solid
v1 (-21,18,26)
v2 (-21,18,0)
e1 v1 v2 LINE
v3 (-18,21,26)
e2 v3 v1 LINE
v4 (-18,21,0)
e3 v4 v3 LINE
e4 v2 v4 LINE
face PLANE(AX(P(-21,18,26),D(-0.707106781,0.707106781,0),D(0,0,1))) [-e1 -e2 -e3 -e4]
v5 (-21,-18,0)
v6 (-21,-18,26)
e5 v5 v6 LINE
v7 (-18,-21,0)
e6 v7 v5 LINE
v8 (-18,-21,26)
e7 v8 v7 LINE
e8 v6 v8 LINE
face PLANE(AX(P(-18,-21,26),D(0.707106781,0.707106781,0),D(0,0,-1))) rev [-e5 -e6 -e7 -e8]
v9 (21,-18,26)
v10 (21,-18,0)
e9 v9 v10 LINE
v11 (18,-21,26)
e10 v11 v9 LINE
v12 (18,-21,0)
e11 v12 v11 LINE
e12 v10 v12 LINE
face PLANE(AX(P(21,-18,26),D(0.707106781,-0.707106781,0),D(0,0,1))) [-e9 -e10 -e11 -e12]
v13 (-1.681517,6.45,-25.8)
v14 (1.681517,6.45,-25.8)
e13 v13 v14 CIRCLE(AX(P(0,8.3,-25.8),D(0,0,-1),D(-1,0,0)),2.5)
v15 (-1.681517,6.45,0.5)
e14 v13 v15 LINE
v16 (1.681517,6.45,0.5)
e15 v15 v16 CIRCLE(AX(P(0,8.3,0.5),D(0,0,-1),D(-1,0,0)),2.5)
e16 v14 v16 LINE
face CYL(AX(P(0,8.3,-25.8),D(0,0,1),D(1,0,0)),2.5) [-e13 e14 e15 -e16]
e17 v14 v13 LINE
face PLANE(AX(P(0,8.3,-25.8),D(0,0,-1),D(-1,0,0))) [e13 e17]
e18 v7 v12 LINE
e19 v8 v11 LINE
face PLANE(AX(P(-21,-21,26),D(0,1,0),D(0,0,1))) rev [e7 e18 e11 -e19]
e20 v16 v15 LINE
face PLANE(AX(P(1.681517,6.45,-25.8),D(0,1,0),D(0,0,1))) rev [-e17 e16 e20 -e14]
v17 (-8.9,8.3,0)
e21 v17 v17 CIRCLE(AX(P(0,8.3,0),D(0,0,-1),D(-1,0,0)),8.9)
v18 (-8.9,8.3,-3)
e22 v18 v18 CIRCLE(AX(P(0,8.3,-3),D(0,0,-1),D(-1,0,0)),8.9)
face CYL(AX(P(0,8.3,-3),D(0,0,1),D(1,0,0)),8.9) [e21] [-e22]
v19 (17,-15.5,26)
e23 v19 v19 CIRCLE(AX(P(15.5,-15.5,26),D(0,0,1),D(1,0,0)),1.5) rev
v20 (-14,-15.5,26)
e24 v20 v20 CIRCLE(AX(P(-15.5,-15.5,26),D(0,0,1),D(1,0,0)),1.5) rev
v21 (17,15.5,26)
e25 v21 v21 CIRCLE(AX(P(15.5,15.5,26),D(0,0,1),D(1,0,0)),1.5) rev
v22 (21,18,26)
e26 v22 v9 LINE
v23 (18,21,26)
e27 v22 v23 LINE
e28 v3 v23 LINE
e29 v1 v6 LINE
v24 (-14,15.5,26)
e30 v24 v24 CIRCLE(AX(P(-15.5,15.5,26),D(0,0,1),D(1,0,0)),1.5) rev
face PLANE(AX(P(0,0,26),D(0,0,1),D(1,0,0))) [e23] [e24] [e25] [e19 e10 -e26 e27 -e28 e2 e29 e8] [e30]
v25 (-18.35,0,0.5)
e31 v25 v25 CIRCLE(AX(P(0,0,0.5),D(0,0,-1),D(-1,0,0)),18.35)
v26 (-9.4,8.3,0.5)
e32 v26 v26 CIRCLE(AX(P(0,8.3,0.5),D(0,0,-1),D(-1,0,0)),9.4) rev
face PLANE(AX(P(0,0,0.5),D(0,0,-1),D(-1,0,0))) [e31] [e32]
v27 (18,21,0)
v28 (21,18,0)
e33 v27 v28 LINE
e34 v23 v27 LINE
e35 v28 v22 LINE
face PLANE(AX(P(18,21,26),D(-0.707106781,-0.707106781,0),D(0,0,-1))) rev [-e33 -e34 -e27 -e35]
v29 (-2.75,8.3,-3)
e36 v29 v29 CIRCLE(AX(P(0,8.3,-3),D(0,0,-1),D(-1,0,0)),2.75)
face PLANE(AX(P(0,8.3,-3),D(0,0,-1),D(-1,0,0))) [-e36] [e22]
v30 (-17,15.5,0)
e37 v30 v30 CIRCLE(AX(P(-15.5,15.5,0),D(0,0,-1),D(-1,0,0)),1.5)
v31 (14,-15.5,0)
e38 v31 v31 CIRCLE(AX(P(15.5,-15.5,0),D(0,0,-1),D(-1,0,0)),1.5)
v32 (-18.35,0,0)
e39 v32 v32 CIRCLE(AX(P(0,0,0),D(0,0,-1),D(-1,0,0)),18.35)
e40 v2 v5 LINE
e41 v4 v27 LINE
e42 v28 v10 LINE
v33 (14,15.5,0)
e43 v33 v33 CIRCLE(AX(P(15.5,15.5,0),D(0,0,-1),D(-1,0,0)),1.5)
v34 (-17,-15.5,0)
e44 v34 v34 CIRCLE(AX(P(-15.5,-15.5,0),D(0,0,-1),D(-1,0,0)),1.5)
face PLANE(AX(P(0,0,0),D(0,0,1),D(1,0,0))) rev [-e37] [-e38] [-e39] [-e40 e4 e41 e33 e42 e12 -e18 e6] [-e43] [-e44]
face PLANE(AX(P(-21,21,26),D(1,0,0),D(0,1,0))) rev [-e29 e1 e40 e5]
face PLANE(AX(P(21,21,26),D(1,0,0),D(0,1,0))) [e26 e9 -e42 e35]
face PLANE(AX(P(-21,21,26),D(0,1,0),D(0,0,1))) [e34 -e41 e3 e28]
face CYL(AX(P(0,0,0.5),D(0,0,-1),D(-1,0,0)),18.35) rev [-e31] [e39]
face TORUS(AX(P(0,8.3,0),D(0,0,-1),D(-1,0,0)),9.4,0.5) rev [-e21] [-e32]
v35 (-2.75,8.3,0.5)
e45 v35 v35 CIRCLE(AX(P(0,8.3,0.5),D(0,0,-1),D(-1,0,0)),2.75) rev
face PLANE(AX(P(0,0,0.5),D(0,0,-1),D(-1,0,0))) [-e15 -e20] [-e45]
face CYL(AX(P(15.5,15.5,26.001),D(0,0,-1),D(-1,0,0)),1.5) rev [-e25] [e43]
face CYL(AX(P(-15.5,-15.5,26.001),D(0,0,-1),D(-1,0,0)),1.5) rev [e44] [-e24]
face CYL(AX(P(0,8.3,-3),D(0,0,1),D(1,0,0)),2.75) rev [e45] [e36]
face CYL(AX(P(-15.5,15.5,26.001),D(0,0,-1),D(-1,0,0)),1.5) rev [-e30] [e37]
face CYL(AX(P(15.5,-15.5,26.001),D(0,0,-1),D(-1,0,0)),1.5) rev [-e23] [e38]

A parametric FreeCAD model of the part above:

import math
import FreeCAD as App
import Part
import Sketcher
from FreeCAD import Vector
Q = App.Units.Quantity


def edges_at(feature, points):
    """Names of the edges that pass closest to the given points."""
    edges = feature.Shape.Edges
    near = lambda p: min(range(len(edges)), key=lambda i: edges[i].distToShape(Part.Vertex(*p))[0])
    return sorted({f"Edge{near(p) + 1}" for p in points})

doc = App.newDocument("Part")
body = doc.addObject("PartDesign::Body", "Body")

# Sketch on XY plane
sketch1 = doc.addObject("Sketcher::SketchObject", "Sketch")
body.addObject(sketch1)
sketch1.AttachmentSupport = (doc.XY_Plane, [""])
sketch1.MapMode = "FlatFace"
sketch1.addGeometry(Part.LineSegment(Vector(-21, 21, 0), Vector(-21, -21, 0)), False)
sketch1.addGeometry(Part.LineSegment(Vector(-21, -21, 0), Vector(21, -21, 0)), False)
sketch1.addGeometry(Part.LineSegment(Vector(21, -21, 0), Vector(21, 21, 0)), False)
sketch1.addGeometry(Part.LineSegment(Vector(21, 21, 0), Vector(-21, 21, 0)), False)
sketch1.addConstraint(Sketcher.Constraint("Coincident", 0, 2, 1, 1))
sketch1.addConstraint(Sketcher.Constraint("Coincident", 1, 2, 2, 1))
sketch1.addConstraint(Sketcher.Constraint("Coincident", 2, 2, 3, 1))
sketch1.addConstraint(Sketcher.Constraint("Coincident", 3, 2, 0, 1))
sketch1.addConstraint(Sketcher.Constraint("Vertical", 0))
sketch1.addConstraint(Sketcher.Constraint("Horizontal", 1))
sketch1.addConstraint(Sketcher.Constraint("Vertical", 2))
sketch1.addConstraint(Sketcher.Constraint("Horizontal", 3))
sketch1.addConstraint(Sketcher.Constraint("Symmetric", 0, 2, 2, 2, -1, 1))
sketch1.addConstraint(Sketcher.Constraint("Equal", 3, 0))
sketch1.addConstraint(Sketcher.Constraint("DistanceX", 1, 1, 1, 2, Q("42 mm")))
pad1 = doc.addObject("PartDesign::Pad", "Pad")
body.addObject(pad1)
pad1.Profile = sketch1
pad1.Length = 26
doc.recompute()

chamfer = doc.addObject("PartDesign::Chamfer", "Chamfer")
body.addObject(chamfer)
chamfer.Base = (pad1, edges_at(pad1, [
    (-21, 21, 13),
    (21, 21, 13),
    (21, -21, 13),
    (-21, -21, 13),
]))
chamfer.Size = 3

# Sketch on XY plane
sketch2 = doc.addObject("Sketcher::SketchObject", "Sketch001")
body.addObject(sketch2)
sketch2.AttachmentSupport = (doc.XY_Plane, [""])
sketch2.MapMode = "FlatFace"
sketch2.addGeometry(Part.Circle(Vector(0, 0, 0), Vector(0, 0, 1), 11.25), False)
sketch2.addConstraint(Sketcher.Constraint("Coincident", 0, 3, -1, 1))
sketch2.addConstraint(Sketcher.Constraint("Diameter", 0, Q("22.5 mm")))
pad2 = doc.addObject("PartDesign::Pad", "Pad001")
body.addObject(pad2)
pad2.Profile = sketch2
pad2.Length = 0.5

# Sketch on XY plane
sketch3 = doc.addObject("Sketcher::SketchObject", "Sketch002")
body.addObject(sketch3)
sketch3.AttachmentSupport = (doc.XY_Plane, [""])
sketch3.MapMode = "FlatFace"
sketch3.addGeometry(Part.Circle(Vector(-15.5, 15.5, 0), Vector(0, 0, 1), 1.5), False)
sketch3.addConstraint(Sketcher.Constraint("Diameter", 0, Q("3 mm")))
sketch3.addConstraint(Sketcher.Constraint("DistanceX", 0, 3, -1, 1, Q("15.5 mm")))
sketch3.addConstraint(Sketcher.Constraint("DistanceY", -1, 1, 0, 3, Q("15.5 mm")))
pocket1 = doc.addObject("PartDesign::Pocket", "Pocket")
body.addObject(pocket1)
pocket1.Profile = sketch3
pocket1.Type = "UpToFirst"
pocket1.Reversed = True

# Sketch on XY plane
sketch4 = doc.addObject("Sketcher::SketchObject", "Sketch003")
body.addObject(sketch4)
sketch4.AttachmentSupport = (doc.XY_Plane, [""])
sketch4.MapMode = "FlatFace"
sketch4.addGeometry(Part.Circle(Vector(15.5, 15.5, 0), Vector(0, 0, 1), 1.5), False)
sketch4.addConstraint(Sketcher.Constraint("Diameter", 0, Q("3 mm")))
sketch4.addConstraint(Sketcher.Constraint("DistanceX", -1, 1, 0, 3, Q("15.5 mm")))
sketch4.addConstraint(Sketcher.Constraint("DistanceY", -1, 1, 0, 3, Q("15.5 mm")))
pocket2 = doc.addObject("PartDesign::Pocket", "Pocket001")
body.addObject(pocket2)
pocket2.Profile = sketch4
pocket2.Type = "UpToFirst"
pocket2.Reversed = True

# Sketch on XY plane
sketch5 = doc.addObject("Sketcher::SketchObject", "Sketch004")
body.addObject(sketch5)
sketch5.AttachmentSupport = (doc.XY_Plane, [""])
sketch5.MapMode = "FlatFace"
sketch5.addGeometry(Part.Circle(Vector(15.5, -15.5, 0), Vector(0, 0, 1), 1.5), False)
sketch5.addConstraint(Sketcher.Constraint("Diameter", 0, Q("3 mm")))
sketch5.addConstraint(Sketcher.Constraint("DistanceX", -1, 1, 0, 3, Q("15.5 mm")))
sketch5.addConstraint(Sketcher.Constraint("DistanceY", 0, 3, -1, 1, Q("15.5 mm")))
pocket3 = doc.addObject("PartDesign::Pocket", "Pocket002")
body.addObject(pocket3)
pocket3.Profile = sketch5
pocket3.Type = "UpToFirst"
pocket3.Reversed = True

# Sketch on XY plane
sketch6 = doc.addObject("Sketcher::SketchObject", "Sketch005")
body.addObject(sketch6)
sketch6.AttachmentSupport = (doc.XY_Plane, [""])
sketch6.MapMode = "FlatFace"
sketch6.addGeometry(Part.Circle(Vector(-15.5, -15.5, 0), Vector(0, 0, 1), 1.5), False)
sketch6.addConstraint(Sketcher.Constraint("Diameter", 0, Q("3 mm")))
sketch6.addConstraint(Sketcher.Constraint("DistanceX", 0, 3, -1, 1, Q("15.5 mm")))
sketch6.addConstraint(Sketcher.Constraint("DistanceY", 0, 3, -1, 1, Q("15.5 mm")))
pocket4 = doc.addObject("PartDesign::Pocket", "Pocket003")
body.addObject(pocket4)
pocket4.Profile = sketch6
pocket4.Type = "UpToFirst"
pocket4.Reversed = True

# Sketch on XY plane
sketch7 = doc.addObject("Sketcher::SketchObject", "Sketch006")
body.addObject(sketch7)
sketch7.AttachmentSupport = (doc.XY_Plane, [""])
sketch7.MapMode = "FlatFace"
sketch7.addGeometry(Part.Circle(Vector(0, 0, 0), Vector(0, 0, 1), 18.35), False)
sketch7.addConstraint(Sketcher.Constraint("Coincident", 0, 3, -1, 1))
sketch7.addConstraint(Sketcher.Constraint("Diameter", 0, Q("36.7 mm")))
pocket5 = doc.addObject("PartDesign::Pocket", "Pocket004")
body.addObject(pocket5)
pocket5.Profile = sketch7
pocket5.Length = 0.5
pocket5.Reversed = True

# Sketch on XY plane
sketch8 = doc.addObject("Sketcher::SketchObject", "Sketch007")
body.addObject(sketch8)
sketch8.AttachmentSupport = (doc.XY_Plane, [""])
sketch8.MapMode = "FlatFace"
sketch8.AttachmentOffset = App.Placement(Vector(0, 0, 0.5), App.Rotation())
sketch8.addGeometry(Part.Circle(Vector(0, 8.3, 0), Vector(0, 0, 1), 8.9), False)
sketch8.addGeometry(Part.Circle(Vector(0, 8.3, 0), Vector(0, 0, 1), 2.75), False)
sketch8.addConstraint(Sketcher.Constraint("Coincident", 1, 3, 0, 3))
sketch8.addConstraint(Sketcher.Constraint("PointOnObject", 0, 3, -2))
sketch8.addConstraint(Sketcher.Constraint("Diameter", 0, Q("17.8 mm")))
sketch8.addConstraint(Sketcher.Constraint("Diameter", 1, Q("5.5 mm")))
sketch8.addConstraint(Sketcher.Constraint("DistanceY", -1, 1, 0, 3, Q("8.3 mm")))
pad3 = doc.addObject("PartDesign::Pad", "Pad002")
body.addObject(pad3)
pad3.Profile = sketch8
pad3.Length = 3.5
pad3.Reversed = True

# Sketch on XY plane
sketch9 = doc.addObject("Sketcher::SketchObject", "Sketch008")
body.addObject(sketch9)
sketch9.AttachmentSupport = (doc.XY_Plane, [""])
sketch9.MapMode = "FlatFace"
sketch9.AttachmentOffset = App.Placement(Vector(0, 0, 0.5), App.Rotation())
sketch9.addGeometry(Part.LineSegment(Vector(1.681517, 6.45, 0), Vector(-1.681517, 6.45, 0)), False)
sketch9.addGeometry(Part.ArcOfCircle(Part.Circle(Vector(0, 8.3, 0), Vector(0, 0, 1), 2.5), math.radians(-47.731416), math.radians(227.731416)), False)
sketch9.addConstraint(Sketcher.Constraint("Coincident", 0, 1, 1, 1))
sketch9.addConstraint(Sketcher.Constraint("Coincident", 1, 2, 0, 2))
sketch9.addConstraint(Sketcher.Constraint("Horizontal", 0))
sketch9.addConstraint(Sketcher.Constraint("PointOnObject", 1, 3, -2))
sketch9.addConstraint(Sketcher.Constraint("Radius", 1, Q("2.5 mm")))
sketch9.addConstraint(Sketcher.Constraint("DistanceY", -1, 1, 1, 3, Q("8.3 mm")))
sketch9.addConstraint(Sketcher.Constraint("DistanceY", -1, 1, 0, 1, Q("6.45 mm")))
pad4 = doc.addObject("PartDesign::Pad", "Pad003")
body.addObject(pad4)
pad4.Profile = sketch9
pad4.Length = 26.3
pad4.Reversed = True
doc.recompute()

fillet = doc.addObject("PartDesign::Fillet", "Fillet")
body.addObject(fillet)
fillet.Base = (pad4, edges_at(pad4, [(8.9, 8.3, 0.5)]))
fillet.Radius = 0.5

doc.recompute()
